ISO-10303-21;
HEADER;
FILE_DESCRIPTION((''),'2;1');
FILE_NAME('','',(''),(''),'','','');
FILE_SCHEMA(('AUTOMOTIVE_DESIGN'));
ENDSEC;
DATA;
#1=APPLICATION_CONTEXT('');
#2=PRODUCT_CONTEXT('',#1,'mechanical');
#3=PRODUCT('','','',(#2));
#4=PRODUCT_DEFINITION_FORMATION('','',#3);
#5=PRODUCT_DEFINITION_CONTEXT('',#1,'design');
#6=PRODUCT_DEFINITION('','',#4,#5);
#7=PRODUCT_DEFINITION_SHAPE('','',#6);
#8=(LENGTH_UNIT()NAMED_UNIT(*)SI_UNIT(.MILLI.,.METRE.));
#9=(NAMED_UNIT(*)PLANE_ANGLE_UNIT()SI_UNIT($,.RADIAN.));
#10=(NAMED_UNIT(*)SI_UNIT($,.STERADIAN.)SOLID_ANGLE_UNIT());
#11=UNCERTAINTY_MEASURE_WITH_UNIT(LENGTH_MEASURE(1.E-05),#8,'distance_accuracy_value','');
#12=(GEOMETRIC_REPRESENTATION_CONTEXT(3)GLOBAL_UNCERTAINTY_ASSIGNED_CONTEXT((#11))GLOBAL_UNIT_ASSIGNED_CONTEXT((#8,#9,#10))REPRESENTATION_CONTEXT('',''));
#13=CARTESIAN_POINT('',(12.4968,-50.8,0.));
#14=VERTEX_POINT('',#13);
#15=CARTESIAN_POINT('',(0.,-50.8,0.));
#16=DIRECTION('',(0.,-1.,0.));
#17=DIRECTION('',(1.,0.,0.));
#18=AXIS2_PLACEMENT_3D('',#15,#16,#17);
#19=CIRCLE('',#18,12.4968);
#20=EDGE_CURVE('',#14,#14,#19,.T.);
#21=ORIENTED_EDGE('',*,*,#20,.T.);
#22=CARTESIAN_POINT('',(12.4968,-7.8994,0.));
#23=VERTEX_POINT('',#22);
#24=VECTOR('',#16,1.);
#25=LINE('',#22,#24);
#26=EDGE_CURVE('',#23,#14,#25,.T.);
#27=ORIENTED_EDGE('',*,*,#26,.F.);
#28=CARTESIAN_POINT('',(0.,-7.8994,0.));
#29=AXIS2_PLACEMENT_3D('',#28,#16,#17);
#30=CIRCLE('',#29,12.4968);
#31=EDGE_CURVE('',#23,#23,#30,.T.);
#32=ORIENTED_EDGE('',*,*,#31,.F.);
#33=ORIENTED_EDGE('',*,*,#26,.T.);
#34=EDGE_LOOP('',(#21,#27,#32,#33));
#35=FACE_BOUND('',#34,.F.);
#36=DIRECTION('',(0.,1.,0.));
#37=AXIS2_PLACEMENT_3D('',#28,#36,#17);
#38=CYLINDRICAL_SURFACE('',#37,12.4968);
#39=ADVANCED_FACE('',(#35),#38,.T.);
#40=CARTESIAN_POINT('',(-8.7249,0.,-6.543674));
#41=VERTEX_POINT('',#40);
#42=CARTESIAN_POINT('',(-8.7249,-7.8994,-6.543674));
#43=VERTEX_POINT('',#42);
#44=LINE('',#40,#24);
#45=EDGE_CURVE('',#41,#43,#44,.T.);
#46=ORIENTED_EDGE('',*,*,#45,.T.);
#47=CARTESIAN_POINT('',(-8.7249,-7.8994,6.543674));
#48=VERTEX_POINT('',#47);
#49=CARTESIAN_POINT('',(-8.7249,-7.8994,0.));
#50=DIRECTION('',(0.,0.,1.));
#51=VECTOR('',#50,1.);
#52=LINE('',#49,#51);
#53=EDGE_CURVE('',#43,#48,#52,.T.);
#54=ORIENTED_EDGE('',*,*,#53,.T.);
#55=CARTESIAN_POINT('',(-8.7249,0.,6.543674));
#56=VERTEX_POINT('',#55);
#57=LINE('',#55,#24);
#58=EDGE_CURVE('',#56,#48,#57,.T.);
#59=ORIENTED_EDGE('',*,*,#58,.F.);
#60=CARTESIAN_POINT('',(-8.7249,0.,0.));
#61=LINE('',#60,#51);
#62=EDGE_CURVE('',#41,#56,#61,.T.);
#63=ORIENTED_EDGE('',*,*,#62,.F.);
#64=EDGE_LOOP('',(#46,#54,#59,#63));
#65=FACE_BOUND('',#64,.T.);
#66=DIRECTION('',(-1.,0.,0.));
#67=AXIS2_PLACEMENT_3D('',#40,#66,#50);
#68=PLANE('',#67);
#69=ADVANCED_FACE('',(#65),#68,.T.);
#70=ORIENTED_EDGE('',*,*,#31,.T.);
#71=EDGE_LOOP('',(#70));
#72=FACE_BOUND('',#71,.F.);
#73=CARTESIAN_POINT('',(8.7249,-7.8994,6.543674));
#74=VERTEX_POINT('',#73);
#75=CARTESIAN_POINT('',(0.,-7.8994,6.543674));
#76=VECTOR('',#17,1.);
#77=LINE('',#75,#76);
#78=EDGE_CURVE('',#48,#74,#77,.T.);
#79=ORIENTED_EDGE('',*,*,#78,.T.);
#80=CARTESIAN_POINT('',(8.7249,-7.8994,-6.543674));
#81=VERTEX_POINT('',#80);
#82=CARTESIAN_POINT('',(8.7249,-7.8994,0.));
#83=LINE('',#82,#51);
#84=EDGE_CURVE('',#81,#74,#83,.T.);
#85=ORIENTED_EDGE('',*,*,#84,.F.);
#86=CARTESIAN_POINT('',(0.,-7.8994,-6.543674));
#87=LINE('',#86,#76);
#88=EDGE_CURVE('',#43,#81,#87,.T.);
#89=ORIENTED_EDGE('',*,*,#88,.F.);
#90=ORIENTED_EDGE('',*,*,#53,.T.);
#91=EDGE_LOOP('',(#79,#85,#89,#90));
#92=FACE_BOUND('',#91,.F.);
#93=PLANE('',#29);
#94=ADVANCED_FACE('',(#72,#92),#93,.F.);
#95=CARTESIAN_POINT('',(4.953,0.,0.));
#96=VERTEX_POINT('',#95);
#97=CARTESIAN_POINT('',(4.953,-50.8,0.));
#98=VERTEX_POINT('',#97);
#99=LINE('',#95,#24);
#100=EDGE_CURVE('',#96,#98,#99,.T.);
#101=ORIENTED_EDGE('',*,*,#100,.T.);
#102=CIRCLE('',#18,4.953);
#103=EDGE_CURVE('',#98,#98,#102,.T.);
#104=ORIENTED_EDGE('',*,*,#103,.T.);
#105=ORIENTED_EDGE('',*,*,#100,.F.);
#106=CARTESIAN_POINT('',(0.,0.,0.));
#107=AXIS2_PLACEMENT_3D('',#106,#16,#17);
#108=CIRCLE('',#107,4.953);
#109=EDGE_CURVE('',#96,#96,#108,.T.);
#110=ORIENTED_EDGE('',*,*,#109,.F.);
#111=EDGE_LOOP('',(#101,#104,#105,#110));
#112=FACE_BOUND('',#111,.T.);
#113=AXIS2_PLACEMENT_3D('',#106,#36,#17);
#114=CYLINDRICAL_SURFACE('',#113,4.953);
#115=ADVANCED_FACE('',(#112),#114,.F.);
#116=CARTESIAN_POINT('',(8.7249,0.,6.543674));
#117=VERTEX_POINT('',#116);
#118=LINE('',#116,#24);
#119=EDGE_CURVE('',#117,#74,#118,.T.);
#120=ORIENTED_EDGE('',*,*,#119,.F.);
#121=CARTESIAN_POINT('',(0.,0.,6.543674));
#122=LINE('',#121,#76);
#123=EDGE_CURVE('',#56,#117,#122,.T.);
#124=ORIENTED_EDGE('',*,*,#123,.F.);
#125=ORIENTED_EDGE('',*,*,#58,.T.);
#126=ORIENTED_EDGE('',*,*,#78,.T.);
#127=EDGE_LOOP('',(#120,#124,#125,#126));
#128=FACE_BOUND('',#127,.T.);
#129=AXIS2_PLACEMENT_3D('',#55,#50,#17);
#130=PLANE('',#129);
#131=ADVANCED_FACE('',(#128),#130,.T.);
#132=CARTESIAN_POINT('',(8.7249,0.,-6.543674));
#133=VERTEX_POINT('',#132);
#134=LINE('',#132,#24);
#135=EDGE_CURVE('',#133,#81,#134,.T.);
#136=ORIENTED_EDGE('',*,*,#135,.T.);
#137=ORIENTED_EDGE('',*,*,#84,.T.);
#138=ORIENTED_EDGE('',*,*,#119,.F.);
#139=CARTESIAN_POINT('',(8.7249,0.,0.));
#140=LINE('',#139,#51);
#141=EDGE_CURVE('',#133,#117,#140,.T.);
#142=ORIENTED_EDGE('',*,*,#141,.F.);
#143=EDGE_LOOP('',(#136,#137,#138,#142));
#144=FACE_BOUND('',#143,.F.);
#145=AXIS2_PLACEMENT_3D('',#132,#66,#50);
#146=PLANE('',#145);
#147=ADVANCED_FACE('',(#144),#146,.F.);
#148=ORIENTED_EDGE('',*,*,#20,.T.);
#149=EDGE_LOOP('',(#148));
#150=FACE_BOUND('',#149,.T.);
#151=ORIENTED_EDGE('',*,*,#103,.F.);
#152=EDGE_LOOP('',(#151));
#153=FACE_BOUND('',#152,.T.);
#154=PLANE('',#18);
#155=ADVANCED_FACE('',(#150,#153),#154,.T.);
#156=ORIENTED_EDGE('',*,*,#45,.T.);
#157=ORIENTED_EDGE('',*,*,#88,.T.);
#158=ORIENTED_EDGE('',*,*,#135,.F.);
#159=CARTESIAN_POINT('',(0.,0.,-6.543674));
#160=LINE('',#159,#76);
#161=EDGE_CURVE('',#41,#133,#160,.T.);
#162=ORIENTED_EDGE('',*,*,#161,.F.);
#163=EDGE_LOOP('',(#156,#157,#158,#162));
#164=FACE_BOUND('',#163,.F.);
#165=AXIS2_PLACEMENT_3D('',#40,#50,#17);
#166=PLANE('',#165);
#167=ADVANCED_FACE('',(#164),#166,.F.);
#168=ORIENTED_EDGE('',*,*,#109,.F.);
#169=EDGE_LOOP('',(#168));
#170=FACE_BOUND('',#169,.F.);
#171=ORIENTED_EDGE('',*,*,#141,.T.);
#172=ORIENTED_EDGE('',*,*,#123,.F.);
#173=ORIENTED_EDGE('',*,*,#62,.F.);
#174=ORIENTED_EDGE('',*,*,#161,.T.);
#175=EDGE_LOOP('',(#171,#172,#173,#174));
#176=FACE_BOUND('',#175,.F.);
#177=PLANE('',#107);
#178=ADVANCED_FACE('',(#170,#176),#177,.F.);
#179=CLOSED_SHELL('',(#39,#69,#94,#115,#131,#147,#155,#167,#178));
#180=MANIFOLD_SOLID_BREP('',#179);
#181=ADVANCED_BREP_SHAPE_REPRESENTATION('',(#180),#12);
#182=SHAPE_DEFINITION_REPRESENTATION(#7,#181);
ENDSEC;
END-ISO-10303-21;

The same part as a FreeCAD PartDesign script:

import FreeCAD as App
import Part
import Sketcher
from FreeCAD import Vector
Q = App.Units.Quantity

doc = App.newDocument("Part")
body = doc.addObject("PartDesign::Body", "Body")

# Sketch on XZ plane
sketch1 = doc.addObject("Sketcher::SketchObject", "Sketch")
body.addObject(sketch1)
sketch1.AttachmentSupport = (doc.XZ_Plane, [""])
sketch1.MapMode = "FlatFace"
sketch1.addGeometry(Part.LineSegment(Vector(-9, 7, 0), Vector(-9, -7, 0)), False)
sketch1.addGeometry(Part.LineSegment(Vector(-9, -7, 0), Vector(9, -7, 0)), False)
sketch1.addGeometry(Part.LineSegment(Vector(9, -7, 0), Vector(9, 7, 0)), False)
sketch1.addGeometry(Part.LineSegment(Vector(9, 7, 0), Vector(-9, 7, 0)), False)
sketch1.addConstraint(Sketcher.Constraint("Coincident", 0, 2, 1, 1))
sketch1.addConstraint(Sketcher.Constraint("Coincident", 1, 2, 2, 1))
sketch1.addConstraint(Sketcher.Constraint("Coincident", 2, 2, 3, 1))
sketch1.addConstraint(Sketcher.Constraint("Coincident", 3, 2, 0, 1))
sketch1.addConstraint(Sketcher.Constraint("Vertical", 0))
sketch1.addConstraint(Sketcher.Constraint("Horizontal", 1))
sketch1.addConstraint(Sketcher.Constraint("Vertical", 2))
sketch1.addConstraint(Sketcher.Constraint("Horizontal", 3))
sketch1.addConstraint(Sketcher.Constraint("Symmetric", 0, 2, 2, 2, -1, 1))
sketch1.addConstraint(Sketcher.Constraint("DistanceX", 1, 1, 1, 2, Q("0.687 in")))
sketch1.addConstraint(Sketcher.Constraint("DistanceY", 0, 2, 0, 1, Q("13.087348 mm")))
pad1 = doc.addObject("PartDesign::Pad", "Pad")
body.addObject(pad1)
pad1.Profile = sketch1
pad1.Length = Q("0.311 in")

# Sketch on XZ plane
sketch2 = doc.addObject("Sketcher::SketchObject", "Sketch001")
body.addObject(sketch2)
sketch2.AttachmentSupport = (doc.XZ_Plane, [""])
sketch2.MapMode = "FlatFace"
sketch2.AttachmentOffset = App.Placement(Vector(0, 0, 0.311 * 25.4), App.Rotation())
sketch2.addGeometry(Part.Circle(Vector(0, 0, 0), Vector(0, 0, 1), 12), False)
sketch2.addConstraint(Sketcher.Constraint("Coincident", 0, 3, -1, 1))
sketch2.addConstraint(Sketcher.Constraint("Diameter", 0, Q("0.984 in")))
pad2 = doc.addObject("PartDesign::Pad", "Pad001")
body.addObject(pad2)
pad2.Profile = sketch2
pad2.Length = Q("1.689 in")

# Sketch on XZ plane
sketch3 = doc.addObject("Sketcher::SketchObject", "Sketch002")
body.addObject(sketch3)
sketch3.AttachmentSupport = (doc.XZ_Plane, [""])
sketch3.MapMode = "FlatFace"
sketch3.addGeometry(Part.Circle(Vector(0, 0, 0), Vector(0, 0, 1), 5), False)
sketch3.addConstraint(Sketcher.Constraint("Coincident", 0, 3, -1, 1))
sketch3.addConstraint(Sketcher.Constraint("Diameter", 0, Q("0.39 in")))
pocket1 = doc.addObject("PartDesign::Pocket", "Pocket")
body.addObject(pocket1)
pocket1.Profile = sketch3
pocket1.Length = Q("2 in")
pocket1.Reversed = True

doc.recompute()
